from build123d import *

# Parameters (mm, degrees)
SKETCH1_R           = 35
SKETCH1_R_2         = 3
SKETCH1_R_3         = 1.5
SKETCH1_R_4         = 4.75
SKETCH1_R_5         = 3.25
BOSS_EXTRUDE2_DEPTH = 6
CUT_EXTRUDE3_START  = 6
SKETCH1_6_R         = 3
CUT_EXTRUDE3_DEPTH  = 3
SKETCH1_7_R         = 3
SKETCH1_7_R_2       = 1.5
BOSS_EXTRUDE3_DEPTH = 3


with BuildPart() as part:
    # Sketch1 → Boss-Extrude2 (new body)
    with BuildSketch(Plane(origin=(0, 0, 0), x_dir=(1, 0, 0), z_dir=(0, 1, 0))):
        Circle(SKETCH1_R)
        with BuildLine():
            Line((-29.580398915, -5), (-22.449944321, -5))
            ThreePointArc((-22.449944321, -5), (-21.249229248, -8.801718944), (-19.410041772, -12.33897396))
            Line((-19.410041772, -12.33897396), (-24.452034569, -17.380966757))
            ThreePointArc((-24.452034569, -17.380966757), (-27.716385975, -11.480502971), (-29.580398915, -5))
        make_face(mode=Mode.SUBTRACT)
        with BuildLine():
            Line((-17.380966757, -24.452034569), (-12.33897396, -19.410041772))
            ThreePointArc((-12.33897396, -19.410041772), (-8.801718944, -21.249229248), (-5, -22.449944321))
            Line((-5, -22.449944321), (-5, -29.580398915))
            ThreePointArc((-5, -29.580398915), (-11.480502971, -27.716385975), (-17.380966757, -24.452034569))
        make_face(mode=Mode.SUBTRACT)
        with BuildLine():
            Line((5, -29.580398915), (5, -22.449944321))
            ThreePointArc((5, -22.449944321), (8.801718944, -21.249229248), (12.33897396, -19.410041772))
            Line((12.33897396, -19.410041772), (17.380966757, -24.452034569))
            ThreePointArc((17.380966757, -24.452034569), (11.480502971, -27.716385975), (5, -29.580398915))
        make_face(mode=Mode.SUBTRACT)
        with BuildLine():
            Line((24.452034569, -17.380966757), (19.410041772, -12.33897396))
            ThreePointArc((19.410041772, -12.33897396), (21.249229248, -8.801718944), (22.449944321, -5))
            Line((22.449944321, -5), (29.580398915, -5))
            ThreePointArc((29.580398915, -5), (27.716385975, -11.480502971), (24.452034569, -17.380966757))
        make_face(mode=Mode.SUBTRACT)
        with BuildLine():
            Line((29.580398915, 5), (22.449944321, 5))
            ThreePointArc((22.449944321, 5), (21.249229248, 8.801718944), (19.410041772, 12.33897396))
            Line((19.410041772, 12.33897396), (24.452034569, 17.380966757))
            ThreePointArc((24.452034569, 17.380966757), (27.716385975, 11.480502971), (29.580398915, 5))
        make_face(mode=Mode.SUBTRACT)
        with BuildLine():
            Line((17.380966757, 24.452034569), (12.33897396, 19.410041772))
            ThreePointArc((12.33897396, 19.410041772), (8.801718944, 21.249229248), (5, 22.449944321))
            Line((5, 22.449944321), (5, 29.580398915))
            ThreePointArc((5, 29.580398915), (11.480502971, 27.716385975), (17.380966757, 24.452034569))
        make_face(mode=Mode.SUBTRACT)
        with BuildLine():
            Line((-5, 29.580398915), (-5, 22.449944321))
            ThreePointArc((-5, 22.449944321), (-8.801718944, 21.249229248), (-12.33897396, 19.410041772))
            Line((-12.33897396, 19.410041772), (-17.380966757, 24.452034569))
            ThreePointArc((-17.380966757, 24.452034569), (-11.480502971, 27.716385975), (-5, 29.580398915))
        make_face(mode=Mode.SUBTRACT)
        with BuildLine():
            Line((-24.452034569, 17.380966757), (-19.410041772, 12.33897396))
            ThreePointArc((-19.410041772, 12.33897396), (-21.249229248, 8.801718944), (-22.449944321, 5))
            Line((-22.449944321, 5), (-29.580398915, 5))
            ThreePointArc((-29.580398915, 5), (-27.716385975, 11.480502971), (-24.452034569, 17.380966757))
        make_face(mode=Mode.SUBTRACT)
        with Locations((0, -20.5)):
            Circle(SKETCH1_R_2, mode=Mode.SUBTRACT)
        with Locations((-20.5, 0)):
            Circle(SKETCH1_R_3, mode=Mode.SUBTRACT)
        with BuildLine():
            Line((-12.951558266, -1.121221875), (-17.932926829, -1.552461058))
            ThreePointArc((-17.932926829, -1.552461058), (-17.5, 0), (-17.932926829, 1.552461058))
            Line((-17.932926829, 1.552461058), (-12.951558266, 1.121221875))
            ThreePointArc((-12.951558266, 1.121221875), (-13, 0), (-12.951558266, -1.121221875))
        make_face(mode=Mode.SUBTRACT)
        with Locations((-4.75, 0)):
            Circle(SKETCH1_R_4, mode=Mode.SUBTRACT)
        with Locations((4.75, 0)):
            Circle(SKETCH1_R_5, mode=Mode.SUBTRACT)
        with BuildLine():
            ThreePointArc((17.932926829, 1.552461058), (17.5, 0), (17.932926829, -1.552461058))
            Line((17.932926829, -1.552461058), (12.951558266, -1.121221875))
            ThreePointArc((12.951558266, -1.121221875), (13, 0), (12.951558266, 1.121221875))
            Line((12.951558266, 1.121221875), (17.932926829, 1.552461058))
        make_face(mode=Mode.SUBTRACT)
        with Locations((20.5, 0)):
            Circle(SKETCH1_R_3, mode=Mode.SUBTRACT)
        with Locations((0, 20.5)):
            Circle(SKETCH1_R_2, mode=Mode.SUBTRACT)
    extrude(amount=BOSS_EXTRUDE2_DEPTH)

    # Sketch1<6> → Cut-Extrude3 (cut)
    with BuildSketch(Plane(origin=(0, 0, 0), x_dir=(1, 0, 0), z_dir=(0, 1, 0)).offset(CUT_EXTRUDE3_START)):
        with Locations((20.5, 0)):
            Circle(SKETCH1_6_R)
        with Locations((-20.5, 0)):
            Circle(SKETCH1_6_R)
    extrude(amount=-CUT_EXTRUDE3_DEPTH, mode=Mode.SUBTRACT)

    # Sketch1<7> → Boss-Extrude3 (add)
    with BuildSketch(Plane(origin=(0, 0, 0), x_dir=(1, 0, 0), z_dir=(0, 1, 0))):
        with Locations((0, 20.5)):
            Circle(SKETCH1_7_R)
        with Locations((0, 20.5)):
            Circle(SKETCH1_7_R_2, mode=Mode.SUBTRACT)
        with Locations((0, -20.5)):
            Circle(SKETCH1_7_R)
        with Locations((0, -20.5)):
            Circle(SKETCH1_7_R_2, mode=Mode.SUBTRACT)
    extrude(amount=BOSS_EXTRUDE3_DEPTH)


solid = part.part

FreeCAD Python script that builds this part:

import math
import FreeCAD as App
import Part
import Sketcher

V = App.Vector

doc = App.newDocument("Part")
params = doc.addObject("Spreadsheet::Sheet", "Params")
for row, (alias, value) in enumerate([
    ("sketch1_diameter", "70 mm"),
    ("sketch1_diameter2", "6 mm"),
    ("sketch1_diameter3", "3 mm"),
    ("sketch1_radius", "30 mm"),
    ("sketch1_radius2", "23 mm"),
    ("pad1_length", "6 mm"),
    ("sketch2_diameter", "6 mm"),
    ("pocket1_length", "3 mm"),
    ("sketch3_diameter", "6 mm"),
    ("sketch3_diameter2", "3 mm"),
    ("pad2_length", "3 mm"),
], start=1):
    params.set(f"A{row}", alias)
    params.set(f"B{row}", "=" + value)
    params.setAlias(f"B{row}", alias)

body = doc.addObject("PartDesign::Body", "Body")

# Sketch on XZ plane
sketch1 = doc.addObject("Sketcher::SketchObject", "Sketch")
body.addObject(sketch1)
sketch1.AttachmentSupport = (doc.XZ_Plane, [""])
sketch1.MapMode = "FlatFace"
sketch1.addGeometry([
    Part.Circle(V(0, 0, 0), V(0, 0, 1), 35),  # 0
    Part.ArcOfCircle(Part.Circle(V(0, 0, 0), V(0, 0, 1), 30), math.radians(100), math.radians(125)),  # 1
    Part.LineSegment(V(-17.4, 24.5, 0), V(-12.3, 19.4, 0)),  # 2
    Part.ArcOfCircle(Part.Circle(V(0, 0, 0), V(0, 0, 1), 23), math.radians(102.56), math.radians(122.44)),  # 3
    Part.LineSegment(V(-5, 22.4, 0), V(-5, 29.6, 0)),  # 4
    Part.ArcOfCircle(Part.Circle(V(0, 0, 0), V(0, 0, 1), 30), math.radians(145), math.radians(170)),  # 5
    Part.LineSegment(V(-29.6, 5, 0), V(-22.4, 5, 0)),  # 6
    Part.ArcOfCircle(Part.Circle(V(0, 0, 0), V(0, 0, 1), 23), math.radians(147.56), math.radians(167.44)),  # 7
    Part.LineSegment(V(-19.4, 12.3, 0), V(-24.5, 17.4, 0)),  # 8
    Part.ArcOfCircle(Part.Circle(V(0, 0, 0), V(0, 0, 1), 30), math.radians(55), math.radians(80)),  # 9
    Part.LineSegment(V(5, 29.6, 0), V(5, 22.4, 0)),  # 10
    Part.ArcOfCircle(Part.Circle(V(0, 0, 0), V(0, 0, 1), 23), math.radians(57.56), math.radians(77.44)),  # 11
    Part.LineSegment(V(12.3, 19.4, 0), V(17.4, 24.5, 0)),  # 12
    Part.Circle(V(0, 20.5, 0), V(0, 0, 1), 3),  # 13
    Part.ArcOfCircle(Part.Circle(V(0, 0, 0), V(0, 0, 1), 30), math.radians(10), math.radians(35)),  # 14
    Part.LineSegment(V(24.5, 17.4, 0), V(19.4, 12.3, 0)),  # 15
    Part.ArcOfCircle(Part.Circle(V(0, 0, 0), V(0, 0, 1), 23), math.radians(12.56), math.radians(32.44)),  # 16
    Part.LineSegment(V(22.4, 5, 0), V(29.6, 5, 0)),  # 17
    Part.Circle(V(-20.5, 0, 0), V(0, 0, 1), 1.5),  # 18
    Part.ArcOfCircle(Part.Circle(V(0, 0, 0), V(0, 0, 1), 13), math.radians(175.05), math.radians(184.95)),  # 19
    Part.LineSegment(V(-13, 1.1, 0), V(-17.9, 1.6, 0)),  # 20
    Part.ArcOfCircle(Part.Circle(V(-20.5, 0, 0), V(0, 0, 1), 3), math.radians(-31), math.radians(31)),  # 21
    Part.LineSegment(V(-17.9, -1.6, 0), V(-13, -1.1, 0)),  # 22
    Part.ArcOfCircle(Part.Circle(V(0, 0, 0), V(0, 0, 1), 30), math.radians(-170), math.radians(-145)),  # 23
    Part.LineSegment(V(-24.5, -17.4, 0), V(-19.4, -12.3, 0)),  # 24
    Part.ArcOfCircle(Part.Circle(V(0, 0, 0), V(0, 0, 1), 23), math.radians(-167.44), math.radians(-147.56)),  # 25
    Part.LineSegment(V(-22.4, -5, 0), V(-29.6, -5, 0)),  # 26
    Part.Circle(V(-4.8, 0, 0), V(0, 0, 1), 4.8),  # 27
    Part.ArcOfCircle(Part.Circle(V(0, 0, 0), V(0, 0, 1), 30), math.radians(-125), math.radians(-100)),  # 28
    Part.LineSegment(V(-5, -29.6, 0), V(-5, -22.4, 0)),  # 29
    Part.ArcOfCircle(Part.Circle(V(0, 0, 0), V(0, 0, 1), 23), math.radians(-122.44), math.radians(-102.56)),  # 30
    Part.LineSegment(V(-12.3, -19.4, 0), V(-17.4, -24.5, 0)),  # 31
    Part.Circle(V(4.8, 0, 0), V(0, 0, 1), 3.2),  # 32
    Part.LineSegment(V(13, -1.1, 0), V(17.9, -1.6, 0)),  # 33
    Part.ArcOfCircle(Part.Circle(V(20.5, 0, 0), V(0, 0, 1), 3), math.radians(149), math.radians(211)),  # 34
    Part.LineSegment(V(17.9, 1.6, 0), V(13, 1.1, 0)),  # 35
    Part.ArcOfCircle(Part.Circle(V(0, 0, 0), V(0, 0, 1), 13), math.radians(-4.95), math.radians(4.95)),  # 36
    Part.Circle(V(20.5, 0, 0), V(0, 0, 1), 1.5),  # 37
    Part.ArcOfCircle(Part.Circle(V(0, 0, 0), V(0, 0, 1), 30), math.radians(-35), math.radians(-10)),  # 38
    Part.LineSegment(V(29.6, -5, 0), V(22.4, -5, 0)),  # 39
    Part.ArcOfCircle(Part.Circle(V(0, 0, 0), V(0, 0, 1), 23), math.radians(-32.44), math.radians(-12.56)),  # 40
    Part.LineSegment(V(19.4, -12.3, 0), V(24.5, -17.4, 0)),  # 41
    Part.Circle(V(0, -20.5, 0), V(0, 0, 1), 3),  # 42
    Part.ArcOfCircle(Part.Circle(V(0, 0, 0), V(0, 0, 1), 30), math.radians(-80), math.radians(-55)),  # 43
    Part.LineSegment(V(17.4, -24.5, 0), V(12.3, -19.4, 0)),  # 44
    Part.ArcOfCircle(Part.Circle(V(0, 0, 0), V(0, 0, 1), 23), math.radians(-77.44), math.radians(-57.56)),  # 45
    Part.LineSegment(V(5, -22.4, 0), V(5, -29.6, 0)),  # 46
], False)
sketch1.addConstraint([
    Sketcher.Constraint("Coincident", 1, 2, 2, 1),
    Sketcher.Constraint("Coincident", 2, 2, 3, 2),
    Sketcher.Constraint("Coincident", 3, 1, 4, 1),
    Sketcher.Constraint("Coincident", 4, 2, 1, 1),
    Sketcher.Constraint("Coincident", 5, 2, 6, 1),
    Sketcher.Constraint("Coincident", 6, 2, 7, 2),
    Sketcher.Constraint("Coincident", 7, 1, 8, 1),
    Sketcher.Constraint("Coincident", 8, 2, 5, 1),
    Sketcher.Constraint("Coincident", 9, 2, 10, 1),
    Sketcher.Constraint("Coincident", 10, 2, 11, 2),
    Sketcher.Constraint("Coincident", 11, 1, 12, 1),
    Sketcher.Constraint("Coincident", 12, 2, 9, 1),
    Sketcher.Constraint("Coincident", 14, 2, 15, 1),
    Sketcher.Constraint("Coincident", 15, 2, 16, 2),
    Sketcher.Constraint("Coincident", 16, 1, 17, 1),
    Sketcher.Constraint("Coincident", 17, 2, 14, 1),
    Sketcher.Constraint("Coincident", 19, 1, 20, 1),
    Sketcher.Constraint("Coincident", 20, 2, 21, 2),
    Sketcher.Constraint("Coincident", 21, 1, 22, 1),
    Sketcher.Constraint("Coincident", 22, 2, 19, 2),
    Sketcher.Constraint("Coincident", 23, 2, 24, 1),
    Sketcher.Constraint("Coincident", 24, 2, 25, 2),
    Sketcher.Constraint("Coincident", 25, 1, 26, 1),
    Sketcher.Constraint("Coincident", 26, 2, 23, 1),
    Sketcher.Constraint("Coincident", 28, 2, 29, 1),
    Sketcher.Constraint("Coincident", 29, 2, 30, 2),
    Sketcher.Constraint("Coincident", 30, 1, 31, 1),
    Sketcher.Constraint("Coincident", 31, 2, 28, 1),
    Sketcher.Constraint("Coincident", 33, 2, 34, 2),
    Sketcher.Constraint("Coincident", 34, 1, 35, 1),
    Sketcher.Constraint("Coincident", 35, 2, 36, 2),
    Sketcher.Constraint("Coincident", 36, 1, 33, 1),
    Sketcher.Constraint("Coincident", 38, 2, 39, 1),
    Sketcher.Constraint("Coincident", 39, 2, 40, 2),
    Sketcher.Constraint("Coincident", 40, 1, 41, 1),
    Sketcher.Constraint("Coincident", 41, 2, 38, 1),
    Sketcher.Constraint("Coincident", 43, 2, 44, 1),
    Sketcher.Constraint("Coincident", 44, 2, 45, 2),
    Sketcher.Constraint("Coincident", 45, 1, 46, 1),
    Sketcher.Constraint("Coincident", 46, 2, 43, 1),
    Sketcher.Constraint("Vertical", 4),
    Sketcher.Constraint("Horizontal", 6),
    Sketcher.Constraint("Vertical", 10),
    Sketcher.Constraint("Horizontal", 17),
    Sketcher.Constraint("Horizontal", 26),
    Sketcher.Constraint("Vertical", 29),
    Sketcher.Constraint("Horizontal", 39),
    Sketcher.Constraint("Vertical", 46),
    Sketcher.Constraint("Coincident", 0, 3, -1, 1),
    Sketcher.Constraint("Coincident", 1, 3, -1, 1),
    Sketcher.Constraint("Coincident", 3, 3, -1, 1),
    Sketcher.Constraint("Coincident", 5, 3, -1, 1),
    Sketcher.Constraint("Coincident", 7, 3, -1, 1),
    Sketcher.Constraint("Coincident", 9, 3, -1, 1),
    Sketcher.Constraint("Coincident", 11, 3, -1, 1),
    Sketcher.Constraint("Coincident", 14, 3, -1, 1),
    Sketcher.Constraint("Coincident", 16, 3, -1, 1),
    Sketcher.Constraint("Coincident", 19, 3, -1, 1),
    Sketcher.Constraint("Coincident", 23, 3, -1, 1),
    Sketcher.Constraint("Coincident", 25, 3, -1, 1),
    Sketcher.Constraint("Coincident", 28, 3, -1, 1),
    Sketcher.Constraint("Coincident", 30, 3, -1, 1),
    Sketcher.Constraint("Coincident", 36, 3, -1, 1),
    Sketcher.Constraint("Coincident", 38, 3, -1, 1),
    Sketcher.Constraint("Coincident", 40, 3, -1, 1),
    Sketcher.Constraint("Coincident", 43, 3, -1, 1),
    Sketcher.Constraint("Coincident", 45, 3, -1, 1),
    Sketcher.Constraint("Coincident", 21, 3, 18, 3),
    Sketcher.Constraint("Coincident", 37, 3, 34, 3),
    Sketcher.Constraint("Equal", 1, 5),
    Sketcher.Constraint("Equal", 3, 7),
    Sketcher.Constraint("Equal", 5, 9),
    Sketcher.Constraint("Equal", 7, 11),
    Sketcher.Constraint("Equal", 9, 14),
    Sketcher.Constraint("Equal", 11, 16),
    Sketcher.Constraint("Equal", 13, 21),
    Sketcher.Constraint("Equal", 14, 23),
    Sketcher.Constraint("Equal", 16, 25),
    Sketcher.Constraint("Equal", 23, 28),
    Sketcher.Constraint("Equal", 25, 30),
    Sketcher.Constraint("Equal", 21, 34),
    Sketcher.Constraint("Equal", 19, 36),
    Sketcher.Constraint("Equal", 18, 37),
    Sketcher.Constraint("Equal", 28, 38),
    Sketcher.Constraint("Equal", 30, 40),
    Sketcher.Constraint("Equal", 34, 42),
    Sketcher.Constraint("Equal", 38, 43),
    Sketcher.Constraint("Equal", 40, 45),
    Sketcher.Constraint("Symmetric", 27, 3, 32, 3, -1, 1),
    Sketcher.Constraint("Symmetric", 18, 3, 34, 3, -1, 1),
    Sketcher.Constraint("Symmetric", 13, 3, 42, 3, -1, 1),
    Sketcher.Constraint("Symmetric", 21, 1, 33, 2, -2),
    Sketcher.Constraint("PointOnObject", 13, 3, -2),
    Sketcher.Constraint("PointOnObject", 27, 3, -1),
    Sketcher.Constraint("Parallel", 2, 8),
    Sketcher.Constraint("Perpendicular", 8, 12),
    Sketcher.Constraint("Parallel", 12, 15),
    Sketcher.Constraint("Parallel", 15, 24),
    Sketcher.Constraint("Parallel", 24, 31),
    Sketcher.Constraint("Parallel", 20, 33),
    Sketcher.Constraint("Parallel", 22, 35),
    Sketcher.Constraint("Perpendicular", 31, 41),
    Sketcher.Constraint("Parallel", 41, 44),
    Sketcher.Constraint("Horizontal", 4, 2, 9, 2),
    Sketcher.Constraint("Horizontal", 2, 2, 11, 1),
    Sketcher.Constraint("Horizontal", 1, 2, 12, 2),
    Sketcher.Constraint("Horizontal", 8, 2, 14, 2),
    Sketcher.Constraint("Horizontal", 6, 2, 16, 1),
    Sketcher.Constraint("Horizontal", 20, 2, 34, 1),
    Sketcher.Constraint("Horizontal", 19, 1, 35, 2),
    Sketcher.Constraint("Horizontal", 26, 2, 38, 2),
    Sketcher.Constraint("Horizontal", 24, 2, 40, 1),
    Sketcher.Constraint("Horizontal", 31, 2, 43, 2),
    Sketcher.Constraint("Horizontal", 29, 2, 45, 1),
    Sketcher.Constraint("Vertical", 20, 2, 21, 1),
    Sketcher.Constraint("Vertical", 8, 2, 23, 2),
    Sketcher.Constraint("Vertical", 6, 2, 25, 1),
    Sketcher.Constraint("Vertical", 4, 2, 28, 2),
    Sketcher.Constraint("Vertical", 2, 2, 30, 1),
    Sketcher.Constraint("Equal", 39, 4),
    Sketcher.Constraint("Equal", 2, 8),
    Sketcher.Constraint("Diameter", 0, 70.0),
    Sketcher.Constraint("Diameter", 13, 6.0),
    Sketcher.Constraint("Diameter", 18, 3.0),
    Sketcher.Constraint("Radius", 1, 30.0),
    Sketcher.Constraint("Radius", 3, 23.0),
    Sketcher.Constraint("Radius", 19, 13.0),
    Sketcher.Constraint("Diameter", 27, 9.5),
    Sketcher.Constraint("Diameter", 32, 6.5),
    Sketcher.Constraint("Distance", 20, 5.0),
    Sketcher.Constraint("DistanceX", 3, 1, -1, 1, 5.0),
    Sketcher.Constraint("DistanceY", -1, 1, 13, 3, 20.5),
    Sketcher.Constraint("DistanceX", 18, 3, -1, 1, 20.5),
    Sketcher.Constraint("DistanceX", 27, 3, -1, 1, 4.75),
    Sketcher.Constraint("DistanceY", -1, 1, 2, 2, 19.410042),
    Sketcher.Constraint("DistanceX", 19, 1, -1, 1, 12.951558),
])
sketch1.setExpression("Constraints[121]", "Params.sketch1_diameter")
sketch1.setExpression("Constraints[122]", "Params.sketch1_diameter2")
sketch1.setExpression("Constraints[123]", "Params.sketch1_diameter3")
sketch1.setExpression("Constraints[124]", "Params.sketch1_radius")
sketch1.setExpression("Constraints[125]", "Params.sketch1_radius2")
pad1 = doc.addObject("PartDesign::Pad", "Pad")
body.addObject(pad1)
pad1.Profile = sketch1
pad1.setExpression("Length", "Params.pad1_length")
pad1.Reversed = True

# Sketch on XZ plane
sketch2 = doc.addObject("Sketcher::SketchObject", "Sketch001")
body.addObject(sketch2)
sketch2.AttachmentSupport = (doc.XZ_Plane, [""])
sketch2.MapMode = "FlatFace"
sketch2.AttachmentOffset = App.Placement(V(0, 0, -6), App.Rotation())
sketch2.addGeometry([
    Part.Circle(V(20.5, 0, 0), V(0, 0, 1), 3),
    Part.Circle(V(-20.5, 0, 0), V(0, 0, 1), 3),
], False)
sketch2.addConstraint([
    Sketcher.Constraint("Equal", 0, 1),
    Sketcher.Constraint("Symmetric", 0, 3, 1, 3, -1, 1),
    Sketcher.Constraint("PointOnObject", 0, 3, -1),
    Sketcher.Constraint("Diameter", 0, 6.0),
    Sketcher.Constraint("DistanceX", 1, 3, 0, 3, 41.0),
])
sketch2.setExpression("Constraints[3]", "Params.sketch2_diameter")
pocket1 = doc.addObject("PartDesign::Pocket", "Pocket")
body.addObject(pocket1)
pocket1.Profile = sketch2
pocket1.setExpression("Length", "Params.pocket1_length")
pocket1.Reversed = True

# Sketch on XZ plane
sketch3 = doc.addObject("Sketcher::SketchObject", "Sketch002")
body.addObject(sketch3)
sketch3.AttachmentSupport = (doc.XZ_Plane, [""])
sketch3.MapMode = "FlatFace"
sketch3.addGeometry([
    Part.Circle(V(0, -20.5, 0), V(0, 0, 1), 3),
    Part.Circle(V(0, -20.5, 0), V(0, 0, 1), 1.5),
    Part.Circle(V(0, 20.5, 0), V(0, 0, 1), 3),
    Part.Circle(V(0, 20.5, 0), V(0, 0, 1), 1.5),
], False)
sketch3.addConstraint([
    Sketcher.Constraint("Coincident", 1, 3, 0, 3),
    Sketcher.Constraint("Coincident", 3, 3, 2, 3),
    Sketcher.Constraint("Equal", 0, 2),
    Sketcher.Constraint("Equal", 1, 3),
    Sketcher.Constraint("Symmetric", 0, 3, 2, 3, -1, 1),
    Sketcher.Constraint("PointOnObject", 0, 3, -2),
    Sketcher.Constraint("Diameter", 0, 6.0),
    Sketcher.Constraint("Diameter", 1, 3.0),
    Sketcher.Constraint("DistanceY", 0, 3, 2, 3, 41.0),
])
sketch3.setExpression("Constraints[6]", "Params.sketch3_diameter")
sketch3.setExpression("Constraints[7]", "Params.sketch3_diameter2")
pad2 = doc.addObject("PartDesign::Pad", "Pad001")
body.addObject(pad2)
pad2.Profile = sketch3
pad2.setExpression("Length", "Params.pad2_length")
pad2.Reversed = True

doc.recompute()
